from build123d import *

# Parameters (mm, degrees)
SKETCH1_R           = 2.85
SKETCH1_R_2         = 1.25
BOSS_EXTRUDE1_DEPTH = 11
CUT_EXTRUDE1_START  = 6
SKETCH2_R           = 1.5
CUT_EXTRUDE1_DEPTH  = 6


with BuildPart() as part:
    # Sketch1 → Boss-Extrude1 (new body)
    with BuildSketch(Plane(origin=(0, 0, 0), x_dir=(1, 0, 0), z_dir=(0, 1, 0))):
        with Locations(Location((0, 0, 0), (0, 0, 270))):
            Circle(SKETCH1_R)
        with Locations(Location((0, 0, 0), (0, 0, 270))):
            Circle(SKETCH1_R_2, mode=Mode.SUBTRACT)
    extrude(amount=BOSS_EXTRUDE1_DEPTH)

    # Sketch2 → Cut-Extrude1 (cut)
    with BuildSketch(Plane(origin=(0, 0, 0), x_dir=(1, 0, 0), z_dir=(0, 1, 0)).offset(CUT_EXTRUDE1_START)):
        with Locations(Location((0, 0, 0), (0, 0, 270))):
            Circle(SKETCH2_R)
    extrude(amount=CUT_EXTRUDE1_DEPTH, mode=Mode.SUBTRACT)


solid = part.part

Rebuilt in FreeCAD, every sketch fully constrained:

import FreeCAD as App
import Part
import Sketcher
from FreeCAD import Vector

doc = App.newDocument("Part")
params = doc.addObject("Spreadsheet::Sheet", "Params")
for row, (alias, value) in enumerate([
    ("sketch1_diameter", "5.7 mm"),
    ("sketch1_diameter2", "2.5 mm"),
    ("pad1_length", "11 mm"),
    ("sketch2_diameter", "3 mm"),
    ("pocket1_length", "6 mm"),
], start=1):
    params.set(f"A{row}", alias)
    params.set(f"B{row}", "=" + value)
    params.setAlias(f"B{row}", alias)

body = doc.addObject("PartDesign::Body", "Body")

sketch1 = doc.addObject("Sketcher::SketchObject", "Sketch")
body.addObject(sketch1)
sketch1.AttachmentSupport = (doc.XZ_Plane, [""])
sketch1.MapMode = "FlatFace"
sketch1.addGeometry([
    Part.Circle(Vector(0, 0, 0), Vector(0, 0, 1), 2.9),
    Part.Circle(Vector(0, 0, 0), Vector(0, 0, 1), 1.2),
], False)
sketch1.addConstraint([
    Sketcher.Constraint("Coincident", 0, 3, -1, 1),
    Sketcher.Constraint("Coincident", 1, 3, -1, 1),
    Sketcher.Constraint("Diameter", 0, 5.7),
    Sketcher.Constraint("Diameter", 1, 2.5),
])
sketch1.setExpression("Constraints[2]", "Params.sketch1_diameter")
sketch1.setExpression("Constraints[3]", "Params.sketch1_diameter2")
pad1 = doc.addObject("PartDesign::Pad", "Pad")
body.addObject(pad1)
pad1.Profile = sketch1
pad1.setExpression("Length", "Params.pad1_length")
pad1.Reversed = True

sketch2 = doc.addObject("Sketcher::SketchObject", "Sketch001")
body.addObject(sketch2)
sketch2.AttachmentSupport = (doc.XZ_Plane, [""])
sketch2.MapMode = "FlatFace"
sketch2.AttachmentOffset = App.Placement(Vector(0, 0, -6), App.Rotation())
sketch2.addGeometry(Part.Circle(Vector(0, 0, 0), Vector(0, 0, 1), 1.5), False)
sketch2.addConstraint([
    Sketcher.Constraint("Coincident", 0, 3, -1, 1),
    Sketcher.Constraint("Diameter", 0, 3.0),
])
sketch2.setExpression("Constraints[1]", "Params.sketch2_diameter")
pocket1 = doc.addObject("PartDesign::Pocket", "Pocket")
body.addObject(pocket1)
pocket1.Profile = sketch2
pocket1.setExpression("Length", "Params.pocket1_length")

doc.recompute()
